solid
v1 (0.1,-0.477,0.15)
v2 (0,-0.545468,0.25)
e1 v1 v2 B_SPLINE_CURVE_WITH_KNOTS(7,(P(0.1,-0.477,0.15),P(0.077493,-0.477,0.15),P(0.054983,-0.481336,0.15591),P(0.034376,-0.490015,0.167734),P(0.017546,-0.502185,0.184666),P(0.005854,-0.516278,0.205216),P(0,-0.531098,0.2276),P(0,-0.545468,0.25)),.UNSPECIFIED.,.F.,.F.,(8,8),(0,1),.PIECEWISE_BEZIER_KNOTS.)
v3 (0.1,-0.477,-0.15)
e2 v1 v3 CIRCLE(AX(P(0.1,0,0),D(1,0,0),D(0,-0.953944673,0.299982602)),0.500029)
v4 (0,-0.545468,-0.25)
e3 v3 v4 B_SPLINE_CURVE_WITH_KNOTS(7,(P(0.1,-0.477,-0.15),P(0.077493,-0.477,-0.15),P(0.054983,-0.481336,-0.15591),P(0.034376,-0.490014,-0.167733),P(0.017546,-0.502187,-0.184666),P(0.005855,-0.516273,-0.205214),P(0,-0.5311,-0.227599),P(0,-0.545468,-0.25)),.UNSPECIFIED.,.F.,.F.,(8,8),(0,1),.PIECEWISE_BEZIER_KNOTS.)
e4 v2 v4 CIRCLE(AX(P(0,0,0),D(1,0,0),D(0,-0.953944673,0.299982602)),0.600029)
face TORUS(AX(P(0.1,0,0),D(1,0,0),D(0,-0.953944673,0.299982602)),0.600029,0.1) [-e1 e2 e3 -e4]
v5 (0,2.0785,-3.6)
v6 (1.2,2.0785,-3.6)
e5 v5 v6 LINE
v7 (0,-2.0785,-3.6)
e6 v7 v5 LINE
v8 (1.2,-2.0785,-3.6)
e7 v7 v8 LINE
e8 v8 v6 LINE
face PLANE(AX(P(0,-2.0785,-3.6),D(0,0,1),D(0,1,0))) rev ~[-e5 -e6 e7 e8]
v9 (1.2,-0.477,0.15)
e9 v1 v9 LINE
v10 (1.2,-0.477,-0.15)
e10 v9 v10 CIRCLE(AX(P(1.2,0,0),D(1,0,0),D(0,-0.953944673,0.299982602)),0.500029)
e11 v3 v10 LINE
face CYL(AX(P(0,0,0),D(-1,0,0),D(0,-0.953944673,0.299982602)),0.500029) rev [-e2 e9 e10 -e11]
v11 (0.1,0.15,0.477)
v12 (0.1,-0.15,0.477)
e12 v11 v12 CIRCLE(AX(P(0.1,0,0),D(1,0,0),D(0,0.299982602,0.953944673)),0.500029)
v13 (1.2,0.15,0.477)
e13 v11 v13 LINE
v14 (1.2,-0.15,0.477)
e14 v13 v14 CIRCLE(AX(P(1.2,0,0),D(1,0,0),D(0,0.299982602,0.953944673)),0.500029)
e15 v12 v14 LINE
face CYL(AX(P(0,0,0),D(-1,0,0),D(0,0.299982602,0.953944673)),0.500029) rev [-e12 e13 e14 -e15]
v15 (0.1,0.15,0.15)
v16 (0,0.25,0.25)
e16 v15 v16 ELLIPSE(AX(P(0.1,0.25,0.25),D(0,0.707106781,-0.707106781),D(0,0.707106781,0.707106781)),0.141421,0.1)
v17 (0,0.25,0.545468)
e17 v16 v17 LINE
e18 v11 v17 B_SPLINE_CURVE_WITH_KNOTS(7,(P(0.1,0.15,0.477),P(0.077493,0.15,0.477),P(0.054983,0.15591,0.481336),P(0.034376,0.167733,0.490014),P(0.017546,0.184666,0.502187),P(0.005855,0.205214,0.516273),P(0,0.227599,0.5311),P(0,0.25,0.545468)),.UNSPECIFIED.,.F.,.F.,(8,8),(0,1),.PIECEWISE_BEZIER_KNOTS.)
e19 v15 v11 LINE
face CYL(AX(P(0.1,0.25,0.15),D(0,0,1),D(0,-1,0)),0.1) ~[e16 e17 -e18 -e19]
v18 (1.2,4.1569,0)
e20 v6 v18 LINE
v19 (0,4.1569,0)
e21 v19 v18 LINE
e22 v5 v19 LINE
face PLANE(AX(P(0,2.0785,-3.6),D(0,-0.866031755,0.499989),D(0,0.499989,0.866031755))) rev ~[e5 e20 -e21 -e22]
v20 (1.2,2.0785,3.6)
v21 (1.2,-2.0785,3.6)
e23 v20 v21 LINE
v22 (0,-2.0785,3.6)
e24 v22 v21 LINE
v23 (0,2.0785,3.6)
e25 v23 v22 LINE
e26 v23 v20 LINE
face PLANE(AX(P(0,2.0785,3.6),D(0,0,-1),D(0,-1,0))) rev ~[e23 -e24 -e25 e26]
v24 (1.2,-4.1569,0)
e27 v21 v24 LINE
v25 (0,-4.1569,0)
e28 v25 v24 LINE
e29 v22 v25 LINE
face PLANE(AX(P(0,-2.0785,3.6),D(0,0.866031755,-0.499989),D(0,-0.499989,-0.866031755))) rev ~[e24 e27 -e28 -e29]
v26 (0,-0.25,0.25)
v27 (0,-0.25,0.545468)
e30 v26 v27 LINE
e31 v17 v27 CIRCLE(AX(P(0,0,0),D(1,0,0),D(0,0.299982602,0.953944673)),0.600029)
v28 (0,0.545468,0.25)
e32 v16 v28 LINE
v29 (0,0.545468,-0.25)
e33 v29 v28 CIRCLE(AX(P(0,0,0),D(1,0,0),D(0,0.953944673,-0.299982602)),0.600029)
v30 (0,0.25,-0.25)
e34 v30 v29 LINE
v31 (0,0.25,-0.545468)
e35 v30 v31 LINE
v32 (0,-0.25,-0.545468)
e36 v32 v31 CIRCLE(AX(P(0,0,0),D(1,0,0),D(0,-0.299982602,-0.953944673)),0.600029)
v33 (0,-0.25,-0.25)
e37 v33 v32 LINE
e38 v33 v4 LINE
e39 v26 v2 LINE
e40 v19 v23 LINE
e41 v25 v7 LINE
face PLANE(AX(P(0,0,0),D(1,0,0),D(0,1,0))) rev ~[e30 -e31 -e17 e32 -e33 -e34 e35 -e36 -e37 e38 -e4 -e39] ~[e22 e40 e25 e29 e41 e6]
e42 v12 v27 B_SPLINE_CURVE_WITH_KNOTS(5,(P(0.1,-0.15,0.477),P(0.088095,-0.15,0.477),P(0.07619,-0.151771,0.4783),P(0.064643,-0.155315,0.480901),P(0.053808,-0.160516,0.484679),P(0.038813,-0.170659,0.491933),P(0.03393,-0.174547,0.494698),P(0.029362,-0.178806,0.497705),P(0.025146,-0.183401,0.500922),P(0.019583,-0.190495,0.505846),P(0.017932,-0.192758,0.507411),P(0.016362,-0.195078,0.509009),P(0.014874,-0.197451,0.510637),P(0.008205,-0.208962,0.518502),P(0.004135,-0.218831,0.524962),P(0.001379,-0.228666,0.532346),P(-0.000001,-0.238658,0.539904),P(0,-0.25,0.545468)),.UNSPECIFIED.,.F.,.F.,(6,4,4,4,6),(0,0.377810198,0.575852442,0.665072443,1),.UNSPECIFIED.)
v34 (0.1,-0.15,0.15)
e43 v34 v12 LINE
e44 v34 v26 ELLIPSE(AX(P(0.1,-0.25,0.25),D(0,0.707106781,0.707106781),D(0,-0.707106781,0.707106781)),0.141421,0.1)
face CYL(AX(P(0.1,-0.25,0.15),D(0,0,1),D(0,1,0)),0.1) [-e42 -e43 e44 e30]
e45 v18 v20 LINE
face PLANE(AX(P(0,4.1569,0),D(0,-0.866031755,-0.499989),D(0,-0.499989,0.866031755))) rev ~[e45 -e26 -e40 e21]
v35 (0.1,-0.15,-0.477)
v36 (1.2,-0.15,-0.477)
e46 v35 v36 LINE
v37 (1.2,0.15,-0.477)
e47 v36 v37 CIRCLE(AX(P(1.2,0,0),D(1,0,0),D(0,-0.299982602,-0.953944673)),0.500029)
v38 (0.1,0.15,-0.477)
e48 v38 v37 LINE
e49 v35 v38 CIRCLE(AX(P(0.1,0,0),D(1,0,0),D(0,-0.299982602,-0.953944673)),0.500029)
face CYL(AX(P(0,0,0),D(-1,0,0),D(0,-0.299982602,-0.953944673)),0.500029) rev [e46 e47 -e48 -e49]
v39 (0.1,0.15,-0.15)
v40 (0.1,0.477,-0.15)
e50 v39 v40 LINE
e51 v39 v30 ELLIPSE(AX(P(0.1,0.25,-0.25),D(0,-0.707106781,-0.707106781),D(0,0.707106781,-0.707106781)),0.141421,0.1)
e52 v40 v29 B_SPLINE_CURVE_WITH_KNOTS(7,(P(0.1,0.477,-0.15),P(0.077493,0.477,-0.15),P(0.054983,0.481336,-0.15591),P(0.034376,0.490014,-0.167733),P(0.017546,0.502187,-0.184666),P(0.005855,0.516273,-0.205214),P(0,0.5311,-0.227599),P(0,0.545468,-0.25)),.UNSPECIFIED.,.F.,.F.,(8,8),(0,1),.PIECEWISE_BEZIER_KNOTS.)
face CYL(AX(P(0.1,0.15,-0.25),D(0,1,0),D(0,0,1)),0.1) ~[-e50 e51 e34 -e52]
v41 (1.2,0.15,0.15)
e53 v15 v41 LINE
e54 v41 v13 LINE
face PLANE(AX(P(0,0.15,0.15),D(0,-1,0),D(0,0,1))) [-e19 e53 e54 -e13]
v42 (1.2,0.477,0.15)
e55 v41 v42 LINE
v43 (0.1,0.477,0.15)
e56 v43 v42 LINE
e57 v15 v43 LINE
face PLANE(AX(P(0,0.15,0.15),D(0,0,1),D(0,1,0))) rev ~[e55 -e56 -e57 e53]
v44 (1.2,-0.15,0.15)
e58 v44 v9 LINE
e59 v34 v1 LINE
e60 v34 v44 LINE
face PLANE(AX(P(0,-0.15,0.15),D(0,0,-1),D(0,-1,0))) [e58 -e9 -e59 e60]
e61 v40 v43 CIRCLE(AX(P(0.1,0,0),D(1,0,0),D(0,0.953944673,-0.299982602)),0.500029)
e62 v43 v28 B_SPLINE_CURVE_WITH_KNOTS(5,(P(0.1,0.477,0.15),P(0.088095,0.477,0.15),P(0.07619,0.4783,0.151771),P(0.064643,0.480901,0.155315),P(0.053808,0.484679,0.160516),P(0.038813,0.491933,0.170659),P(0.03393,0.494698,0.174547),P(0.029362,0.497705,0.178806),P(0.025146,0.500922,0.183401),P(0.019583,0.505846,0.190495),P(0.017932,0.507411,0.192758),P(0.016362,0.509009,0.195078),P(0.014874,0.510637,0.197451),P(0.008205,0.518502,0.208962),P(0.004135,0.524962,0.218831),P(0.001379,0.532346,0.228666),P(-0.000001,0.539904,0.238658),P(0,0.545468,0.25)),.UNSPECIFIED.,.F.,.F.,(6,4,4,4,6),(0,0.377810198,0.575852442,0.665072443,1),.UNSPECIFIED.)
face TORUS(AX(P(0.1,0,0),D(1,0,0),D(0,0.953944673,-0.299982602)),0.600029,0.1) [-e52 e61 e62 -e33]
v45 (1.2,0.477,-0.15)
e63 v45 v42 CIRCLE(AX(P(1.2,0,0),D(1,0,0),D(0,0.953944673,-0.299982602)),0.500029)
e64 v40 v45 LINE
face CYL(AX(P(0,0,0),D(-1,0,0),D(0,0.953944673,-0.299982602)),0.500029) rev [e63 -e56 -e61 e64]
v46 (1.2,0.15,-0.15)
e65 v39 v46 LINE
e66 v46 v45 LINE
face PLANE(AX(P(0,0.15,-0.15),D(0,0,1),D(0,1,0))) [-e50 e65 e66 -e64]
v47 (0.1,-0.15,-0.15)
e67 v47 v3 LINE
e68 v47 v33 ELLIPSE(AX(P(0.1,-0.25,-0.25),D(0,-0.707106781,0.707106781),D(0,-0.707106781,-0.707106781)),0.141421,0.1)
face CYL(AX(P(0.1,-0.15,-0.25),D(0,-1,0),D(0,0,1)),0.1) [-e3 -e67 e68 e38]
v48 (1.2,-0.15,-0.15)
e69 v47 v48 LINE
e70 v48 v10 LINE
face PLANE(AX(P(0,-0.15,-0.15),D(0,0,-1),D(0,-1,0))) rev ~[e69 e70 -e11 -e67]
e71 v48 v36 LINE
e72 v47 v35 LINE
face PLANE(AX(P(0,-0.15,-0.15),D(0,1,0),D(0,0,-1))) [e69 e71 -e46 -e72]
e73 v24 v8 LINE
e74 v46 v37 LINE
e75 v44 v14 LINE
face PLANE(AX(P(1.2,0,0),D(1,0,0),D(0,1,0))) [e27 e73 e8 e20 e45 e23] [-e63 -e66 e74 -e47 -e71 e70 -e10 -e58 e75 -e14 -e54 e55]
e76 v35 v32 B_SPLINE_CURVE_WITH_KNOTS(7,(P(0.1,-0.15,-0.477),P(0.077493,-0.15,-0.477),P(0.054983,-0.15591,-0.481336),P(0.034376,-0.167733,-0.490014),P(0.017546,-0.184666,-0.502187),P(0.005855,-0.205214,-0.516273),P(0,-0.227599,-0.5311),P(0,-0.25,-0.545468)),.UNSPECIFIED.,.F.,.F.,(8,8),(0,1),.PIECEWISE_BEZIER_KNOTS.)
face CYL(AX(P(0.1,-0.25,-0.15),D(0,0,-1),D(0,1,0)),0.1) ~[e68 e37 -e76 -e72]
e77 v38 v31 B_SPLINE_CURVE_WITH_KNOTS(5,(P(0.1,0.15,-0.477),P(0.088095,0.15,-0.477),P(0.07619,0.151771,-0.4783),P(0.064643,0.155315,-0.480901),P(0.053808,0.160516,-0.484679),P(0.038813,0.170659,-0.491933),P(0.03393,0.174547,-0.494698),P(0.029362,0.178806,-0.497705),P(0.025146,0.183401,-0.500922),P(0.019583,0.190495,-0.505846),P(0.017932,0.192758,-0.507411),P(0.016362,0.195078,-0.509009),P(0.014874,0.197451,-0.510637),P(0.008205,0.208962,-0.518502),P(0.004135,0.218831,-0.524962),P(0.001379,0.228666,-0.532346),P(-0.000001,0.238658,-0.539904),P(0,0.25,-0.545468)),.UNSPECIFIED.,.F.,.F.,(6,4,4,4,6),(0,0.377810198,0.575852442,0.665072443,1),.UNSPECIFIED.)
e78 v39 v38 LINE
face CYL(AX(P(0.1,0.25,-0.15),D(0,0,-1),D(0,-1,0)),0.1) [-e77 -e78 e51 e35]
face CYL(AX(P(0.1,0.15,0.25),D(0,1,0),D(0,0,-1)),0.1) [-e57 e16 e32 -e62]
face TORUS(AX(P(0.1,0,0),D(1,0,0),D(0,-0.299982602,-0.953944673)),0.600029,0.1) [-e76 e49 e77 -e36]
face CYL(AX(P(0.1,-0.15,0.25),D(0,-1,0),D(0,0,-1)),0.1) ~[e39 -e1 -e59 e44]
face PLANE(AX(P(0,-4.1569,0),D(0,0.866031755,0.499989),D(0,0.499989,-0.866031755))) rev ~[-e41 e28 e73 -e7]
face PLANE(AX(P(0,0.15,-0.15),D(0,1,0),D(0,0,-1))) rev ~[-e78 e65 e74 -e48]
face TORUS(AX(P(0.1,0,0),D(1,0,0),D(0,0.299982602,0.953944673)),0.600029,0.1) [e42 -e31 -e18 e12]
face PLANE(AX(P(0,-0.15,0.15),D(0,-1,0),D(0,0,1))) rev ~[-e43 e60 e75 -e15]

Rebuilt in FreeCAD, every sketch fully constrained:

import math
import FreeCAD as App
import Part
import Sketcher
from FreeCAD import Vector
Q = App.Units.Quantity


def edges_at(feature, points):
    """Names of the edges that pass closest to the given points."""
    edges = feature.Shape.Edges
    near = lambda p: min(range(len(edges)), key=lambda i: edges[i].distToShape(Part.Vertex(*p))[0])
    return sorted({f"Edge{near(p) + 1}" for p in points})


def add_polygon(sketch, points):
    """Adds a closed chain of lines whose ends are joined by coincident constraints."""
    first, n = sketch.GeometryCount, len(points)
    for a, b in zip(points, points[1:] + points[:1]):
        sketch.addGeometry(Part.LineSegment(App.Vector(*a, 0), App.Vector(*b, 0)), False)
    for i in range(n):
        sketch.addConstraint(Sketcher.Constraint("Coincident", first + i, 2, first + (i + 1) % n, 1))

doc = App.newDocument("Part")
body = doc.addObject("PartDesign::Body", "Body")

sketch1 = body.newObject("Sketcher::SketchObject", "Sketch")
sketch1.AttachmentSupport = (doc.getObject("YZ_Plane"), [""])
sketch1.MapMode = "FlatFace"
add_polygon(sketch1, [(2.08, 3.6), (-2.08, 3.6), (-4.16, 0), (-2.08, -3.6), (2.08, -3.6), (4.16, 0)])
sketch1.addGeometry(Part.LineSegment(Vector(0.15, 0.48, 0), Vector(0.15, 0.15, 0)), False)
sketch1.addGeometry(Part.LineSegment(Vector(0.15, 0.15, 0), Vector(0.48, 0.15, 0)), False)
sketch1.addGeometry(Part.ArcOfCircle(Part.Circle(Vector(0, 0, 0), Vector(0, 0, 1), 0.5), math.radians(-17), math.radians(17)), False)
sketch1.addGeometry(Part.LineSegment(Vector(0.48, -0.15, 0), Vector(0.15, -0.15, 0)), False)
sketch1.addGeometry(Part.LineSegment(Vector(0.15, -0.15, 0), Vector(0.15, -0.48, 0)), False)
sketch1.addGeometry(Part.ArcOfCircle(Part.Circle(Vector(0, 0, 0), Vector(0, 0, 1), 0.5), math.radians(-107), math.radians(-73)), False)
sketch1.addGeometry(Part.LineSegment(Vector(-0.15, -0.48, 0), Vector(-0.15, -0.15, 0)), False)
sketch1.addGeometry(Part.LineSegment(Vector(-0.15, -0.15, 0), Vector(-0.48, -0.15, 0)), False)
sketch1.addGeometry(Part.ArcOfCircle(Part.Circle(Vector(0, 0, 0), Vector(0, 0, 1), 0.5), math.radians(163), math.radians(197)), False)
sketch1.addGeometry(Part.LineSegment(Vector(-0.48, 0.15, 0), Vector(-0.15, 0.15, 0)), False)
sketch1.addGeometry(Part.LineSegment(Vector(-0.15, 0.15, 0), Vector(-0.15, 0.48, 0)), False)
sketch1.addGeometry(Part.ArcOfCircle(Part.Circle(Vector(0, 0, 0), Vector(0, 0, 1), 0.5), math.radians(73), math.radians(107)), False)
sketch1.addConstraint(Sketcher.Constraint("Coincident", 6, 2, 7, 1))
sketch1.addConstraint(Sketcher.Constraint("Coincident", 7, 2, 8, 2))
sketch1.addConstraint(Sketcher.Constraint("Coincident", 8, 1, 9, 1))
sketch1.addConstraint(Sketcher.Constraint("Coincident", 9, 2, 10, 1))
sketch1.addConstraint(Sketcher.Constraint("Coincident", 10, 2, 11, 2))
sketch1.addConstraint(Sketcher.Constraint("Coincident", 11, 1, 12, 1))
sketch1.addConstraint(Sketcher.Constraint("Coincident", 12, 2, 13, 1))
sketch1.addConstraint(Sketcher.Constraint("Coincident", 13, 2, 14, 2))
sketch1.addConstraint(Sketcher.Constraint("Coincident", 14, 1, 15, 1))
sketch1.addConstraint(Sketcher.Constraint("Coincident", 15, 2, 16, 1))
sketch1.addConstraint(Sketcher.Constraint("Coincident", 16, 2, 17, 2))
sketch1.addConstraint(Sketcher.Constraint("Coincident", 17, 1, 6, 1))
sketch1.addConstraint(Sketcher.Constraint("Horizontal", 0))
sketch1.addConstraint(Sketcher.Constraint("Horizontal", 3))
sketch1.addConstraint(Sketcher.Constraint("Vertical", 6))
sketch1.addConstraint(Sketcher.Constraint("Horizontal", 7))
sketch1.addConstraint(Sketcher.Constraint("Horizontal", 9))
sketch1.addConstraint(Sketcher.Constraint("Vertical", 10))
sketch1.addConstraint(Sketcher.Constraint("Vertical", 12))
sketch1.addConstraint(Sketcher.Constraint("Horizontal", 13))
sketch1.addConstraint(Sketcher.Constraint("Horizontal", 15))
sketch1.addConstraint(Sketcher.Constraint("Vertical", 16))
sketch1.addConstraint(Sketcher.Constraint("Coincident", 8, 3, -1, 1))
sketch1.addConstraint(Sketcher.Constraint("Coincident", 11, 3, -1, 1))
sketch1.addConstraint(Sketcher.Constraint("Coincident", 14, 3, -1, 1))
sketch1.addConstraint(Sketcher.Constraint("Coincident", 17, 3, -1, 1))
sketch1.addConstraint(Sketcher.Constraint("Equal", 8, 11))
sketch1.addConstraint(Sketcher.Constraint("Equal", 11, 14))
sketch1.addConstraint(Sketcher.Constraint("Equal", 14, 17))
sketch1.addConstraint(Sketcher.Constraint("Symmetric", 0, 2, 3, 2, -1, 1))
sketch1.addConstraint(Sketcher.Constraint("Symmetric", 1, 2, 4, 2, -1, 1))
sketch1.addConstraint(Sketcher.Constraint("Symmetric", 6, 2, 12, 2, -1, 1))
sketch1.addConstraint(Sketcher.Constraint("Symmetric", 9, 2, 15, 2, -1, 1))
sketch1.addConstraint(Sketcher.Constraint("Symmetric", 9, 2, 12, 2, -2))
sketch1.addConstraint(Sketcher.Constraint("PointOnObject", 1, 2, -1))
sketch1.addConstraint(Sketcher.Constraint("Parallel", 2, 5))
sketch1.addConstraint(Sketcher.Constraint("Vertical", 0, 2, 2, 2))
sketch1.addConstraint(Sketcher.Constraint("Equal", 15, 6))
sketch1.addConstraint(Sketcher.Constraint("DistanceY", -1, 1, 0, 2, 3.6))
sketch1.addConstraint(Sketcher.Constraint("Radius", 8, 0.5))
sketch1.addConstraint(Sketcher.Constraint("DistanceY", 8, 1, 7, 2, 0.3))
sketch1.addConstraint(Sketcher.Constraint("Angle", 1, Q("-119.9993 deg")))
sketch1.addConstraint(Sketcher.Constraint("DistanceX", 0, 2, 0, 1, 4.157))
pad1 = body.newObject("PartDesign::Pad", "Pad")
pad1.Profile = sketch1
pad1.Length = 1.2
doc.recompute()

fillet = body.newObject("PartDesign::Fillet", "Fillet")
fillet.Base = (pad1, edges_at(pad1, [
    (0, -0.314, -0.15),
    (0, -0.15, -0.314),
    (0, 0, -0.5),
    (0, 0.15, -0.314),
    (0, 0.314, -0.15),
    (0, 0.5, 0),
    (0, 0.314, 0.15),
    (0, 0.15, 0.314),
    (0, 0, 0.5),
    (0, -0.15, 0.314),
    (0, -0.314, 0.15),
    (0, -0.5, 0),
]))
fillet.Radius = 0.1

doc.recompute()
